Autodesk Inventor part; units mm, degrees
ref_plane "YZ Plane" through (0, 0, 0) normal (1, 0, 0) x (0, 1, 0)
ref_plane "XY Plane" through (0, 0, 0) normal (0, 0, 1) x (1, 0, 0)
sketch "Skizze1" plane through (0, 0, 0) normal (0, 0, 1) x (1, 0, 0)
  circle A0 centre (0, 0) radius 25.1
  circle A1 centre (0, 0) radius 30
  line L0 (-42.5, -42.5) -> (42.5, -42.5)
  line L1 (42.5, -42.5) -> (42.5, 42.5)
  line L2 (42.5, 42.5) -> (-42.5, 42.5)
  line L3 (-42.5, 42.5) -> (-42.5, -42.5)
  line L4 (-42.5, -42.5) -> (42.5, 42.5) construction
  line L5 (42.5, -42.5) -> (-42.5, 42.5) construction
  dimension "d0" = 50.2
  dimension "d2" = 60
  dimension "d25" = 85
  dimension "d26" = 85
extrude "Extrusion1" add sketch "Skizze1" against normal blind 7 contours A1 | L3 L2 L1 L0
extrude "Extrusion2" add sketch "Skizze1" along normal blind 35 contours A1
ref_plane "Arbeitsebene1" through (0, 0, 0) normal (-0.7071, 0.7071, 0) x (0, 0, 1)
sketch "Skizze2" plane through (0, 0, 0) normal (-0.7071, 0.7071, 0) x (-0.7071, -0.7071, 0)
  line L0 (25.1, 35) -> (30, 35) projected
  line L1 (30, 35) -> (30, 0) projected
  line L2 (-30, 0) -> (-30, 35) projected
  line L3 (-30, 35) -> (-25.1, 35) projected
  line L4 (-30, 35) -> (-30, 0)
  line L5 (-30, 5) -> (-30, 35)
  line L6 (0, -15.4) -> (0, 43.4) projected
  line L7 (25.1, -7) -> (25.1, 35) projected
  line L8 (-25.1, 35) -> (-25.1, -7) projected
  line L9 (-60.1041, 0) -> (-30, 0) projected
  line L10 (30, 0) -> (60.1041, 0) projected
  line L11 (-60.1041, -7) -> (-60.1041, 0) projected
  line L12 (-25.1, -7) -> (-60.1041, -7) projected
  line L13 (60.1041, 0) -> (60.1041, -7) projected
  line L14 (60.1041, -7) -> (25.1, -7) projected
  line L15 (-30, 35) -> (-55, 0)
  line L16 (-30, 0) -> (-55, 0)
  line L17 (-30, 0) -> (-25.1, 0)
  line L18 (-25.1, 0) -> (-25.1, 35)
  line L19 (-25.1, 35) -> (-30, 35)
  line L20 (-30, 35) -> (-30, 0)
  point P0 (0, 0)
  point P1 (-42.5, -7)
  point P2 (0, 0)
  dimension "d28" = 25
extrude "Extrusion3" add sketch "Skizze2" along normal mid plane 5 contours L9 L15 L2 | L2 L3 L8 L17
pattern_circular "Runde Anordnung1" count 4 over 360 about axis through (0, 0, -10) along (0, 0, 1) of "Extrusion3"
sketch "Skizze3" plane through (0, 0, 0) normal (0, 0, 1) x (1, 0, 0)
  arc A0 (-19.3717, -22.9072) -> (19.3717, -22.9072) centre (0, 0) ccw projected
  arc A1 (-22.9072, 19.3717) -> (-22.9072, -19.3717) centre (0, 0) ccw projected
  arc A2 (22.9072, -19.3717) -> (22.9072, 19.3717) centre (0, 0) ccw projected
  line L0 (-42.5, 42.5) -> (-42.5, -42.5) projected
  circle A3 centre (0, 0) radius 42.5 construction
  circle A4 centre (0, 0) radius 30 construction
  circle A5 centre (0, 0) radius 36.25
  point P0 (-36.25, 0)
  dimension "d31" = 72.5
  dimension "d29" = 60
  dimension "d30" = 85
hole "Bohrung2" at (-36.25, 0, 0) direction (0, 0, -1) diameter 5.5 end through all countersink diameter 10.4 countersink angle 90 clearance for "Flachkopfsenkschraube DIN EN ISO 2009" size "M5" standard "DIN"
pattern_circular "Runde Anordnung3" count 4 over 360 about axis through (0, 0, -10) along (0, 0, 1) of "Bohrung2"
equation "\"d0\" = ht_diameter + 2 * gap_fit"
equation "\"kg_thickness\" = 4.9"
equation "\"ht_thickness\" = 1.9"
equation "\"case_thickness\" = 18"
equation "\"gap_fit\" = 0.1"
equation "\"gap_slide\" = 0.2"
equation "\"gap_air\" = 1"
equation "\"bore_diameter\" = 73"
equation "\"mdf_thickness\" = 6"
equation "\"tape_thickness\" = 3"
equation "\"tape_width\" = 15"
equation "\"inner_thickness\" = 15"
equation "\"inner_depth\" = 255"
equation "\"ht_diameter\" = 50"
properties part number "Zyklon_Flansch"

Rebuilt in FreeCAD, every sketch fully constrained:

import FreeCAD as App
import Part
import Sketcher

V = App.Vector

doc = App.newDocument("Part")
body = doc.addObject("PartDesign::Body", "Body")

sketch1 = doc.addObject("Sketcher::SketchObject", "Sketch")
body.addObject(sketch1)
sketch1.AttachmentSupport = (doc.XY_Plane, [""])
sketch1.MapMode = "FlatFace"
sketch1.addGeometry(Part.LineSegment(V(-42, 42, 0), V(-42, -42, 0)), False)
sketch1.addGeometry(Part.LineSegment(V(-42, -42, 0), V(42, -42, 0)), False)
sketch1.addGeometry(Part.LineSegment(V(42, -42, 0), V(42, 42, 0)), False)
sketch1.addGeometry(Part.LineSegment(V(42, 42, 0), V(-42, 42, 0)), False)
sketch1.addGeometry(Part.Circle(V(0, 0, 0), V(0, 0, 1), 25), False)
sketch1.addConstraint(Sketcher.Constraint("Coincident", 0, 2, 1, 1))
sketch1.addConstraint(Sketcher.Constraint("Coincident", 1, 2, 2, 1))
sketch1.addConstraint(Sketcher.Constraint("Coincident", 2, 2, 3, 1))
sketch1.addConstraint(Sketcher.Constraint("Coincident", 3, 2, 0, 1))
sketch1.addConstraint(Sketcher.Constraint("Vertical", 0))
sketch1.addConstraint(Sketcher.Constraint("Horizontal", 1))
sketch1.addConstraint(Sketcher.Constraint("Vertical", 2))
sketch1.addConstraint(Sketcher.Constraint("Horizontal", 3))
sketch1.addConstraint(Sketcher.Constraint("Coincident", 4, 3, -1, 1))
sketch1.addConstraint(Sketcher.Constraint("Symmetric", 0, 2, 2, 2, -1, 1))
sketch1.addConstraint(Sketcher.Constraint("Equal", 3, 0))
sketch1.addConstraint(Sketcher.Constraint("Diameter", 4, 50.2))
sketch1.addConstraint(Sketcher.Constraint("DistanceX", 1, 1, 1, 2, 85.0))
pad1 = doc.addObject("PartDesign::Pad", "Pad")
body.addObject(pad1)
pad1.Profile = sketch1
pad1.Length = 7
pad1.Reversed = True

sketch2 = doc.addObject("Sketcher::SketchObject", "Sketch001")
body.addObject(sketch2)
sketch2.AttachmentSupport = (doc.XY_Plane, [""])
sketch2.MapMode = "FlatFace"
sketch2.addGeometry(Part.Circle(V(0, 0, 0), V(0, 0, 1), 30), False)
sketch2.addGeometry(Part.Circle(V(0, 0, 0), V(0, 0, 1), 25), False)
sketch2.addConstraint(Sketcher.Constraint("Coincident", 0, 3, -1, 1))
sketch2.addConstraint(Sketcher.Constraint("Coincident", 1, 3, -1, 1))
sketch2.addConstraint(Sketcher.Constraint("Diameter", 0, 60.0))
sketch2.addConstraint(Sketcher.Constraint("Diameter", 1, 50.2))
pad2 = doc.addObject("PartDesign::Pad", "Pad001")
body.addObject(pad2)
pad2.Profile = sketch2
pad2.Length = 35

sketch3 = doc.addObject("Sketcher::SketchObject", "Sketch002")
body.addObject(sketch3)
sketch3.Placement = App.Placement(V(0, 0, 0), App.Rotation(V(-0.707106781, -0.707106781, 0), V(0, 0, 0.999999999), V(-0.707106781, 0.707106781, 0), "ZXY"))
sketch3.addGeometry(Part.LineSegment(V(-55, 0, 0), V(-25.1, 0, 0)), False)
sketch3.addGeometry(Part.LineSegment(V(-25.1, 0, 0), V(-25.1, 35, 0)), False)
sketch3.addGeometry(Part.LineSegment(V(-25.1, 35, 0), V(-30, 35, 0)), False)
sketch3.addGeometry(Part.LineSegment(V(-30, 35, 0), V(-55, 0, 0)), False)
sketch3.addConstraint(Sketcher.Constraint("Coincident", 0, 2, 1, 1))
sketch3.addConstraint(Sketcher.Constraint("Coincident", 1, 2, 2, 1))
sketch3.addConstraint(Sketcher.Constraint("Coincident", 2, 2, 3, 1))
sketch3.addConstraint(Sketcher.Constraint("Coincident", 3, 2, 0, 1))
sketch3.addConstraint(Sketcher.Constraint("Horizontal", 0))
sketch3.addConstraint(Sketcher.Constraint("Vertical", 1))
sketch3.addConstraint(Sketcher.Constraint("Horizontal", 2))
sketch3.addConstraint(Sketcher.Constraint("PointOnObject", 0, 2, -1))
sketch3.addConstraint(Sketcher.Constraint("DistanceX", 3, 2, 2, 2, 25.0))
sketch3.addConstraint(Sketcher.Constraint("DistanceY", 1, 1, 1, 2, 35.0))
sketch3.addConstraint(Sketcher.Constraint("DistanceX", 0, 1, 0, 2, 29.9))
sketch3.addConstraint(Sketcher.Constraint("DistanceX", 2, 2, -1, 1, 30.0))
pad3 = doc.addObject("PartDesign::Pad", "Pad002")
body.addObject(pad3)
pad3.Profile = sketch3
pad3.Length = 5
pad3.Midplane = True
doc.recompute()

polarpattern = doc.addObject("PartDesign::PolarPattern", "PolarPattern")
body.addObject(polarpattern)
polarpattern.Originals = [pad3]
polarpattern.Axis = (doc.Z_Axis, [""])
polarpattern.Angle = 360
polarpattern.Occurrences = 4
body.Tip = polarpattern

sketch4 = doc.addObject("Sketcher::SketchObject", "Sketch003")
body.addObject(sketch4)
sketch4.AttachmentSupport = (doc.XY_Plane, [""])
sketch4.MapMode = "FlatFace"
sketch4.addGeometry(Part.Circle(V(-36.2, 0, 0), V(0, 0, 1), 2.8), False)
sketch4.addConstraint(Sketcher.Constraint("PointOnObject", 0, 3, -1))
sketch4.addConstraint(Sketcher.Constraint("Diameter", 0, 5.5))
sketch4.addConstraint(Sketcher.Constraint("DistanceX", 0, 3, -1, 1, 36.25))
doc.recompute()
hole = doc.addObject("PartDesign::Hole", "Hole")
body.addObject(hole)
hole.Profile = sketch4
hole.ThreadType = "None"
hole.Diameter = 5.5
hole.DepthType = "ThroughAll"
hole.HoleCutType = "Countersink"
hole.HoleCutDiameter = 10.4
hole.HoleCutCountersinkAngle = 90
doc.recompute()

polarpattern2 = doc.addObject("PartDesign::PolarPattern", "PolarPattern001")
body.addObject(polarpattern2)
polarpattern2.Originals = [hole]
polarpattern2.Axis = (doc.Z_Axis, [""])
polarpattern2.Angle = 360
polarpattern2.Occurrences = 4
body.Tip = polarpattern2

doc.recompute()
